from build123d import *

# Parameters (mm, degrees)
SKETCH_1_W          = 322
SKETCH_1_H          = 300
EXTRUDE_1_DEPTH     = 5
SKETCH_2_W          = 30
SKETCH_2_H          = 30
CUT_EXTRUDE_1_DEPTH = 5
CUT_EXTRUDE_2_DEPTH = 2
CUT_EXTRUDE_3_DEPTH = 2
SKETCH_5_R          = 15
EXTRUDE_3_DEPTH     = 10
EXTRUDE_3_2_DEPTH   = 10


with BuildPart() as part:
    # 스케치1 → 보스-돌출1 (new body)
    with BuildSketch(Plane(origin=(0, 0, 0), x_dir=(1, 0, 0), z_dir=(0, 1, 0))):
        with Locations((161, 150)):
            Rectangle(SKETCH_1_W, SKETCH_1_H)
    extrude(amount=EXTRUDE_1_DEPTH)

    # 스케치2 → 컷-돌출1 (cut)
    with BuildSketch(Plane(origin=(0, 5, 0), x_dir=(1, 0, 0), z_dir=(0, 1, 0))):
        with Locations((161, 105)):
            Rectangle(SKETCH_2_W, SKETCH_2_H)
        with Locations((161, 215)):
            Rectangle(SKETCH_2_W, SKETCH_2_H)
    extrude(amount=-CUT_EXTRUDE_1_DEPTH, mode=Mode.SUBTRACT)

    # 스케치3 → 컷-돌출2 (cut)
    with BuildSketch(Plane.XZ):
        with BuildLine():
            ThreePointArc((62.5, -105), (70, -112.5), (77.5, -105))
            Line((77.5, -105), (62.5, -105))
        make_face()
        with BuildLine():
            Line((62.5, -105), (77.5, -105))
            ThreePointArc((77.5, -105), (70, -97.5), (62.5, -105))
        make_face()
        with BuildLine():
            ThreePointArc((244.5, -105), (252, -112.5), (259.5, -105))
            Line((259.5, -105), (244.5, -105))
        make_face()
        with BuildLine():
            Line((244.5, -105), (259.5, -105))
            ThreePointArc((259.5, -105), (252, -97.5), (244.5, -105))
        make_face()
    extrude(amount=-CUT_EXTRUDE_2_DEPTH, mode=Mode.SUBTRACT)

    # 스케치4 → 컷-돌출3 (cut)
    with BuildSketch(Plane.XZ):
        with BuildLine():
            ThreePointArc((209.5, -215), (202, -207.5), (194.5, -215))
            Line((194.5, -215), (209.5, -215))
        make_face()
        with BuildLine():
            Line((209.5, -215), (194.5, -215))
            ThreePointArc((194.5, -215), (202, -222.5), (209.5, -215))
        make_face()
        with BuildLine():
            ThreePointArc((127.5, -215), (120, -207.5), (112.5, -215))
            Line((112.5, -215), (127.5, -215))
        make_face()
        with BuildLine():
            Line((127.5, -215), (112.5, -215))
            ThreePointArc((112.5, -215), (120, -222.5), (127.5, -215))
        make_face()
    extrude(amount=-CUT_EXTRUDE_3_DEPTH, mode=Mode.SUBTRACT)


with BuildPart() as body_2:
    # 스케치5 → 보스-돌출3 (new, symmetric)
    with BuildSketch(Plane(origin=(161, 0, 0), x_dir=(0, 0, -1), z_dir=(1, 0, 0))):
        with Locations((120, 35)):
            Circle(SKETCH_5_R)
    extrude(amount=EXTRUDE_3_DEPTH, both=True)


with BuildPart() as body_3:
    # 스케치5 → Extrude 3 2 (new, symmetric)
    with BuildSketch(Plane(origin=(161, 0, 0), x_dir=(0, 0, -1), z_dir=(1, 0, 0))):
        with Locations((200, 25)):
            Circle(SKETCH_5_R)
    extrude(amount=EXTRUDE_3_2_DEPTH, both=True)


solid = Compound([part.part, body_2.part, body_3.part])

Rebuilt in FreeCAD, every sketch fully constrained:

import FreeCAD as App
import Part
import Sketcher

V = App.Vector

doc = App.newDocument("Part")
body = doc.addObject("PartDesign::Body", "Body")

sketch1 = doc.addObject("Sketcher::SketchObject", "Sketch")
body.addObject(sketch1)
sketch1.AttachmentSupport = (doc.XZ_Plane, [""])
sketch1.MapMode = "FlatFace"
sketch1.addGeometry([
    Part.LineSegment(V(0, -300, 0), V(0, 0, 0)),
    Part.LineSegment(V(0, 0, 0), V(322, 0, 0)),
    Part.LineSegment(V(322, 0, 0), V(322, -300, 0)),
    Part.LineSegment(V(322, -300, 0), V(0, -300, 0)),
], False)
sketch1.addConstraint([
    Sketcher.Constraint("Coincident", 0, 2, 1, 1),
    Sketcher.Constraint("Coincident", 1, 2, 2, 1),
    Sketcher.Constraint("Coincident", 2, 2, 3, 1),
    Sketcher.Constraint("Coincident", 3, 2, 0, 1),
    Sketcher.Constraint("Vertical", 0),
    Sketcher.Constraint("Horizontal", 1),
    Sketcher.Constraint("Vertical", 2),
    Sketcher.Constraint("Horizontal", 3),
    Sketcher.Constraint("Coincident", 0, 2, -1, 1),
    Sketcher.Constraint("DistanceX", 1, 1, 1, 2, 322.0),
    Sketcher.Constraint("DistanceY", 0, 1, 0, 2, 300.0),
])
pad1 = doc.addObject("PartDesign::Pad", "Pad")
body.addObject(pad1)
pad1.Profile = sketch1
pad1.Length = 5
pad1.Reversed = True

sketch2 = doc.addObject("Sketcher::SketchObject", "Sketch001")
body.addObject(sketch2)
sketch2.AttachmentSupport = (doc.XZ_Plane, [""])
sketch2.MapMode = "FlatFace"
sketch2.AttachmentOffset = App.Placement(V(0, 0, -5), App.Rotation())
sketch2.addGeometry([
    Part.LineSegment(V(146, -120, 0), V(146, -90, 0)),
    Part.LineSegment(V(146, -90, 0), V(176, -90, 0)),
    Part.LineSegment(V(176, -90, 0), V(176, -120, 0)),
    Part.LineSegment(V(176, -120, 0), V(146, -120, 0)),
    Part.LineSegment(V(146, -230, 0), V(146, -200, 0)),
    Part.LineSegment(V(146, -200, 0), V(176, -200, 0)),
    Part.LineSegment(V(176, -200, 0), V(176, -230, 0)),
    Part.LineSegment(V(176, -230, 0), V(146, -230, 0)),
], False)
sketch2.addConstraint([
    Sketcher.Constraint("Coincident", 0, 2, 1, 1),
    Sketcher.Constraint("Coincident", 1, 2, 2, 1),
    Sketcher.Constraint("Coincident", 2, 2, 3, 1),
    Sketcher.Constraint("Coincident", 3, 2, 0, 1),
    Sketcher.Constraint("Coincident", 4, 2, 5, 1),
    Sketcher.Constraint("Coincident", 5, 2, 6, 1),
    Sketcher.Constraint("Coincident", 6, 2, 7, 1),
    Sketcher.Constraint("Coincident", 7, 2, 4, 1),
    Sketcher.Constraint("Vertical", 0),
    Sketcher.Constraint("Horizontal", 1),
    Sketcher.Constraint("Vertical", 2),
    Sketcher.Constraint("Horizontal", 3),
    Sketcher.Constraint("Vertical", 4),
    Sketcher.Constraint("Horizontal", 5),
    Sketcher.Constraint("Vertical", 6),
    Sketcher.Constraint("Horizontal", 7),
    Sketcher.Constraint("Vertical", 3, 2, 4, 2),
    Sketcher.Constraint("Vertical", 2, 2, 5, 2),
    Sketcher.Constraint("Equal", 7, 0),
    Sketcher.Constraint("Equal", 2, 4),
    Sketcher.Constraint("DistanceX", 1, 1, 1, 2, 30.0),
    Sketcher.Constraint("DistanceX", -1, 1, 0, 2, 146.0),
    Sketcher.Constraint("DistanceY", 0, 2, -1, 1, 90.0),
    Sketcher.Constraint("DistanceY", 4, 2, -1, 1, 200.0),
])
pocket1 = doc.addObject("PartDesign::Pocket", "Pocket")
body.addObject(pocket1)
pocket1.Profile = sketch2
pocket1.Length = 5
pocket1.Reversed = True

sketch3 = doc.addObject("Sketcher::SketchObject", "Sketch002")
body.addObject(sketch3)
sketch3.AttachmentSupport = (doc.XZ_Plane, [""])
sketch3.MapMode = "FlatFace"
sketch3.addGeometry([
    Part.Circle(V(70, -105, 0), V(0, 0, 1), 8),
    Part.Circle(V(252, -105, 0), V(0, 0, 1), 8),
], False)
sketch3.addConstraint([
    Sketcher.Constraint("Equal", 0, 1),
    Sketcher.Constraint("Horizontal", 0, 3, 1, 3),
    Sketcher.Constraint("Diameter", 0, 15.0),
    Sketcher.Constraint("DistanceX", -1, 1, 0, 3, 70.0),
    Sketcher.Constraint("DistanceY", 0, 3, -1, 1, 105.0),
    Sketcher.Constraint("DistanceX", -1, 1, 1, 3, 252.0),
])
pocket2 = doc.addObject("PartDesign::Pocket", "Pocket001")
body.addObject(pocket2)
pocket2.Profile = sketch3
pocket2.Length = 2

sketch4 = doc.addObject("Sketcher::SketchObject", "Sketch003")
body.addObject(sketch4)
sketch4.AttachmentSupport = (doc.XZ_Plane, [""])
sketch4.MapMode = "FlatFace"
sketch4.addGeometry([
    Part.Circle(V(202, -215, 0), V(0, 0, 1), 8),
    Part.Circle(V(120, -215, 0), V(0, 0, 1), 8),
], False)
sketch4.addConstraint([
    Sketcher.Constraint("Equal", 0, 1),
    Sketcher.Constraint("Horizontal", 0, 3, 1, 3),
    Sketcher.Constraint("Diameter", 0, 15.0),
    Sketcher.Constraint("DistanceX", -1, 1, 0, 3, 202.0),
    Sketcher.Constraint("DistanceY", 0, 3, -1, 1, 215.0),
    Sketcher.Constraint("DistanceX", -1, 1, 1, 3, 120.0),
])
pocket3 = doc.addObject("PartDesign::Pocket", "Pocket002")
body.addObject(pocket3)
pocket3.Profile = sketch4
pocket3.Length = 2
body2 = doc.addObject("PartDesign::Body", "Body001")

sketch5 = doc.addObject("Sketcher::SketchObject", "Sketch004")
body2.addObject(sketch5)
sketch5.AttachmentSupport = (doc.getObject("YZ_Plane001"), [""])
sketch5.MapMode = "FlatFace"
sketch5.AttachmentOffset = App.Placement(V(0, 0, 161), App.Rotation())
sketch5.addGeometry(Part.Circle(V(35, -120, 0), V(0, 0, 1), 15), False)
sketch5.addConstraint([
    Sketcher.Constraint("Diameter", 0, 30.0),
    Sketcher.Constraint("DistanceX", -1, 1, 0, 3, 35.0),
    Sketcher.Constraint("DistanceY", 0, 3, -1, 1, 120.0),
])
pad2 = doc.addObject("PartDesign::Pad", "Pad001")
body2.addObject(pad2)
pad2.Profile = sketch5
pad2.Length = 20
pad2.Midplane = True
body3 = doc.addObject("PartDesign::Body", "Body002")

sketch6 = doc.addObject("Sketcher::SketchObject", "Sketch005")
body3.addObject(sketch6)
sketch6.AttachmentSupport = (doc.getObject("YZ_Plane002"), [""])
sketch6.MapMode = "FlatFace"
sketch6.AttachmentOffset = App.Placement(V(0, 0, 161), App.Rotation())
sketch6.addGeometry(Part.Circle(V(25, -200, 0), V(0, 0, 1), 15), False)
sketch6.addConstraint([
    Sketcher.Constraint("Diameter", 0, 30.0),
    Sketcher.Constraint("DistanceX", -1, 1, 0, 3, 25.0),
    Sketcher.Constraint("DistanceY", 0, 3, -1, 1, 200.0),
])
pad3 = doc.addObject("PartDesign::Pad", "Pad002")
body3.addObject(pad3)
pad3.Profile = sketch6
pad3.Length = 20
pad3.Midplane = True

doc.recompute()
